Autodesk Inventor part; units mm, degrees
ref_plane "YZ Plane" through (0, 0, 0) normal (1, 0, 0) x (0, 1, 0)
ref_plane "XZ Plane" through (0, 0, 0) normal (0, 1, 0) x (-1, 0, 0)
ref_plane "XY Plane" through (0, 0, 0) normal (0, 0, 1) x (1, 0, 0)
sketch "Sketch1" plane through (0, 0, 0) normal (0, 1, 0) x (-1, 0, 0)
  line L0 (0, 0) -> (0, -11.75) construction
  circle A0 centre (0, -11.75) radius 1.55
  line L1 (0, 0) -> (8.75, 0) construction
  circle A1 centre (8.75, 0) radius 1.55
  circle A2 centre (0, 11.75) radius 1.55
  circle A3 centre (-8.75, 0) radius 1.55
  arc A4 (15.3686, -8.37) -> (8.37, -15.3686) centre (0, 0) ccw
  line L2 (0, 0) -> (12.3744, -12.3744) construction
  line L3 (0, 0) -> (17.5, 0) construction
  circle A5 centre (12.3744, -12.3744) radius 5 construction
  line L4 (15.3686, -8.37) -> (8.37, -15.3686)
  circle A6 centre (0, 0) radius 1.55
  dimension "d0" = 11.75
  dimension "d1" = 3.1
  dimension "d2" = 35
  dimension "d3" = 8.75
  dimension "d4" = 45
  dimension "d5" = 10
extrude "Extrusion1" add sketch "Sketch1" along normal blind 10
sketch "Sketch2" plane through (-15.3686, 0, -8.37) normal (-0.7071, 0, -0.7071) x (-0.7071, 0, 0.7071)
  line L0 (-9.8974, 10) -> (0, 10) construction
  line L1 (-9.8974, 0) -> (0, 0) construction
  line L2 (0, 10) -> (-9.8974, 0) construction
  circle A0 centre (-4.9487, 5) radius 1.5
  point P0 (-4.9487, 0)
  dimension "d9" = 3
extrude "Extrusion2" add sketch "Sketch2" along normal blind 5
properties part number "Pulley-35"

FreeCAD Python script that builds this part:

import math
import FreeCAD as App
import Part
import Sketcher
Q = App.Units.Quantity

doc = App.newDocument("Part")
body = doc.addObject("PartDesign::Body", "Body")

sketch1 = doc.addObject("Sketcher::SketchObject", "Sketch")
body.addObject(sketch1)
sketch1.AttachmentSupport = (doc.XZ_Plane, [""])
sketch1.MapMode = "FlatFace"
sketch1.addGeometry(Part.LineSegment(App.Vector(-8.37, -15.3686, 0), App.Vector(-15.3686, -8.37, 0)), False)
sketch1.addGeometry(Part.ArcOfCircle(Part.Circle(App.Vector(0, 0, 0), App.Vector(0, 0, 1), 17.500022), math.radians(-118.57346), math.radians(208.57346)), False)
sketch1.addGeometry(Part.Circle(App.Vector(0, -11.75, 0), App.Vector(0, 0, 1), 1.55), False)
sketch1.addGeometry(Part.Circle(App.Vector(8.75, 0, 0), App.Vector(0, 0, 1), 1.55), False)
sketch1.addGeometry(Part.Circle(App.Vector(0, 0, 0), App.Vector(0, 0, 1), 1.55), False)
sketch1.addGeometry(Part.Circle(App.Vector(-8.75, 0, 0), App.Vector(0, 0, 1), 1.55), False)
sketch1.addGeometry(Part.Circle(App.Vector(0, 11.75, 0), App.Vector(0, 0, 1), 1.55), False)
sketch1.addConstraint(Sketcher.Constraint("Coincident", 0, 1, 1, 1))
sketch1.addConstraint(Sketcher.Constraint("Coincident", 1, 2, 0, 2))
sketch1.addConstraint(Sketcher.Constraint("Coincident", 1, 3, -1, 1))
sketch1.addConstraint(Sketcher.Constraint("Coincident", 4, 3, -1, 1))
sketch1.addConstraint(Sketcher.Constraint("Equal", 2, 3))
sketch1.addConstraint(Sketcher.Constraint("Equal", 3, 4))
sketch1.addConstraint(Sketcher.Constraint("Equal", 4, 5))
sketch1.addConstraint(Sketcher.Constraint("Equal", 5, 6))
sketch1.addConstraint(Sketcher.Constraint("Symmetric", 3, 3, 5, 3, -1, 1))
sketch1.addConstraint(Sketcher.Constraint("Symmetric", 2, 3, 6, 3, -1, 1))
sketch1.addConstraint(Sketcher.Constraint("PointOnObject", 2, 3, -2))
sketch1.addConstraint(Sketcher.Constraint("PointOnObject", 3, 3, -1))
sketch1.addConstraint(Sketcher.Constraint("Diameter", 2, Q("3.1 mm")))
sketch1.addConstraint(Sketcher.Constraint("Radius", 1, Q("17.5 mm")))
sketch1.addConstraint(Sketcher.Constraint("DistanceY", 2, 3, -1, 1, Q("11.75 mm")))
sketch1.addConstraint(Sketcher.Constraint("DistanceX", -1, 1, 3, 3, Q("8.75 mm")))
sketch1.addConstraint(Sketcher.Constraint("Angle", 0, Q("135 deg")))
sketch1.addConstraint(Sketcher.Constraint("DistanceX", 0, 1, -1, 1, Q("8.37 mm")))
pad1 = doc.addObject("PartDesign::Pad", "Pad")
body.addObject(pad1)
pad1.Profile = sketch1
pad1.Length = 10
pad1.Reversed = True

sketch2 = doc.addObject("Sketcher::SketchObject", "Sketch001")
body.addObject(sketch2)
sketch2.Placement = App.Placement(App.Vector(-15.3686, 0, -8.37), App.Rotation(App.Vector(-0.707106781, 0, 0.707106781), App.Vector(0, 0.999999999, 0), App.Vector(-0.707106781, 0, -0.707106781), "ZXY"))
sketch2.addGeometry(Part.Circle(App.Vector(-4.9487, 5, 0), App.Vector(0, 0, 1), 1.5), False)
sketch2.addConstraint(Sketcher.Constraint("Diameter", 0, Q("3 mm")))
sketch2.addConstraint(Sketcher.Constraint("DistanceY", -1, 1, 0, 3, Q("5 mm")))
sketch2.addConstraint(Sketcher.Constraint("DistanceX", 0, 3, -1, 1, Q("4.9487 mm")))
pad2 = doc.addObject("PartDesign::Pad", "Pad001")
body.addObject(pad2)
pad2.Profile = sketch2
pad2.Length = 5

doc.recompute()
